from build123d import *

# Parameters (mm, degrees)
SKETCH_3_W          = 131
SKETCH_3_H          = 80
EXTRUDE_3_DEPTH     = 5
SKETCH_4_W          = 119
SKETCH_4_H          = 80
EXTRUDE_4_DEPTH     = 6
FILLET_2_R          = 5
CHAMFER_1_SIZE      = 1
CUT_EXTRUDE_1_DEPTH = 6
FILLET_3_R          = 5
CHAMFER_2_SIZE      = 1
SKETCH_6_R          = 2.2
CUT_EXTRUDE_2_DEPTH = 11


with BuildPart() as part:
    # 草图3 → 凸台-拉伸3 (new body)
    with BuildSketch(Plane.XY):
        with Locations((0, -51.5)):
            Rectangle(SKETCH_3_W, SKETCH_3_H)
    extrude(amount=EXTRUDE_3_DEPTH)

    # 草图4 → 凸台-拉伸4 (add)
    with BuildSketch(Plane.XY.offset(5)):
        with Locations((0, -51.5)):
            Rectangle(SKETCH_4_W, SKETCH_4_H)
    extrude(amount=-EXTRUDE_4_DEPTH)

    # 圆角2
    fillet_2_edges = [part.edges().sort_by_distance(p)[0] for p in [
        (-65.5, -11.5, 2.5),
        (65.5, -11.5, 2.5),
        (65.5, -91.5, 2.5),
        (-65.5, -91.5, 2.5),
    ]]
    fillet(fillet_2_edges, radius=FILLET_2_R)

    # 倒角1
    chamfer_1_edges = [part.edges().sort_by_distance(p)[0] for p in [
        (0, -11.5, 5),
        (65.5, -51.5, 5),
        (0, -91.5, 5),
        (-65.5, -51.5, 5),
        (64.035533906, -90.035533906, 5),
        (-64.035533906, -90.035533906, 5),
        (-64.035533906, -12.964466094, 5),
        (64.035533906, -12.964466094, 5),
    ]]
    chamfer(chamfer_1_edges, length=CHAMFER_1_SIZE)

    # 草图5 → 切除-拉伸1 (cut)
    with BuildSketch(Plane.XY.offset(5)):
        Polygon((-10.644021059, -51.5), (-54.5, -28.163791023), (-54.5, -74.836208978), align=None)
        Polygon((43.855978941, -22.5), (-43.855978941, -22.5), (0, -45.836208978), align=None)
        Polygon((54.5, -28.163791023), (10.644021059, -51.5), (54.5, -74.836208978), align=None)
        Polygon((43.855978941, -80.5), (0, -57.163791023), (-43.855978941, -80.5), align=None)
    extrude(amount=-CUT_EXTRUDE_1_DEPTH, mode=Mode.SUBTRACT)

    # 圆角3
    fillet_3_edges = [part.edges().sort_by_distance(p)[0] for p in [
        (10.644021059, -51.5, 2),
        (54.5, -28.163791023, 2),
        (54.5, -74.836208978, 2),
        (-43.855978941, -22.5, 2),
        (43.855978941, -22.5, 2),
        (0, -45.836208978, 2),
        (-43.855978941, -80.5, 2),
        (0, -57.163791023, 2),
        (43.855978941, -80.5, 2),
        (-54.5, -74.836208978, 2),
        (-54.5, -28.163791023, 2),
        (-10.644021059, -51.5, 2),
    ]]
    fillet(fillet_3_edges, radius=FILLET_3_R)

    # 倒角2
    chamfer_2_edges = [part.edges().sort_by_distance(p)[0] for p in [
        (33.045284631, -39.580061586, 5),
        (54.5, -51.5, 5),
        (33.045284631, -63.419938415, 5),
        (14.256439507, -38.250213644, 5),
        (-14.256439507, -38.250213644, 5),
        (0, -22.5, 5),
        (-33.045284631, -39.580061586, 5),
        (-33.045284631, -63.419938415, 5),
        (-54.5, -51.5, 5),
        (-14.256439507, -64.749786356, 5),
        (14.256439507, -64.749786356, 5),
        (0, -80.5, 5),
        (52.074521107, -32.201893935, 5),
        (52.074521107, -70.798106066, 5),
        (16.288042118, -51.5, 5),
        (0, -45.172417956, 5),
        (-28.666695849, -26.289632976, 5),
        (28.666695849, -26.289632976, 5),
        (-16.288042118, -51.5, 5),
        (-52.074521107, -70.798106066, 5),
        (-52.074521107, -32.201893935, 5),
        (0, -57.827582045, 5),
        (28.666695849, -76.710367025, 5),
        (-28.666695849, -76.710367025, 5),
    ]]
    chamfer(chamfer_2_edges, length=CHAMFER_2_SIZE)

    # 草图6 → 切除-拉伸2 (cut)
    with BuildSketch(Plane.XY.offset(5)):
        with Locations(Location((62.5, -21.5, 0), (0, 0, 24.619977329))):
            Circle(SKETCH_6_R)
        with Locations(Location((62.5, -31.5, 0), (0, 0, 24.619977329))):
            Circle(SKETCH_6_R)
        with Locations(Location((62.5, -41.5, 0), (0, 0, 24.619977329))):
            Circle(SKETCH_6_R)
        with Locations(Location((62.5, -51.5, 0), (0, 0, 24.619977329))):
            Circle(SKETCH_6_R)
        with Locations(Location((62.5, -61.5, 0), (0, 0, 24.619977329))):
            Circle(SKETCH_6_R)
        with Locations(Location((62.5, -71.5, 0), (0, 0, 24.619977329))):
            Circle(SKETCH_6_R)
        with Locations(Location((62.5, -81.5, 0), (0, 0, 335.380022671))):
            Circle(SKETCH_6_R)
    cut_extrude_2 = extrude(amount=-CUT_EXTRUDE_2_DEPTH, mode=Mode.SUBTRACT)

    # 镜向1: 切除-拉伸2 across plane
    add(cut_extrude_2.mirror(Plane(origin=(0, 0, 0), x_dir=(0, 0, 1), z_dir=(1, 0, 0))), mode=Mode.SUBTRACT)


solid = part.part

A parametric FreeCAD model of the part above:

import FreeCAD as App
import Part
import Sketcher
from FreeCAD import Vector
Q = App.Units.Quantity


def edges_at(feature, points):
    """Names of the edges that pass closest to the given points."""
    edges = feature.Shape.Edges
    near = lambda p: min(range(len(edges)), key=lambda i: edges[i].distToShape(Part.Vertex(*p))[0])
    return sorted({f"Edge{near(p) + 1}" for p in points})


def add_polygon(sketch, points):
    """Adds a closed chain of lines whose ends are joined by coincident constraints."""
    first, n = sketch.GeometryCount, len(points)
    for a, b in zip(points, points[1:] + points[:1]):
        sketch.addGeometry(Part.LineSegment(App.Vector(*a, 0), App.Vector(*b, 0)), False)
    for i in range(n):
        sketch.addConstraint(Sketcher.Constraint("Coincident", first + i, 2, first + (i + 1) % n, 1))

doc = App.newDocument("Part")
body = doc.addObject("PartDesign::Body", "Body")

sketch1 = body.newObject("Sketcher::SketchObject", "Sketch")
sketch1.AttachmentSupport = (doc.getObject("XY_Plane"), [""])
sketch1.MapMode = "FlatFace"
add_polygon(sketch1, [(-66, -12), (-66, -92), (66, -92), (66, -12)])
sketch1.addConstraint([
    Sketcher.Constraint("Vertical", 0),
    Sketcher.Constraint("Horizontal", 1),
    Sketcher.Constraint("Vertical", 2),
    Sketcher.Constraint("Horizontal", 3),
    Sketcher.Constraint("DistanceX", 1, 1, 1, 2, Q("131 mm")),
    Sketcher.Constraint("DistanceY", 0, 2, 0, 1, Q("80 mm")),
    Sketcher.Constraint("DistanceX", 0, 2, -1, 1, Q("65.5 mm")),
    Sketcher.Constraint("DistanceY", 0, 2, -1, 1, Q("91.5 mm")),
])
pad1 = body.newObject("PartDesign::Pad", "Pad")
pad1.Profile = sketch1
pad1.Length = 5

sketch2 = body.newObject("Sketcher::SketchObject", "Sketch001")
sketch2.AttachmentSupport = (doc.getObject("XY_Plane"), [""])
sketch2.MapMode = "FlatFace"
sketch2.AttachmentOffset = App.Placement(Vector(0, 0, 5), App.Rotation())
add_polygon(sketch2, [(-60, -12), (-60, -92), (60, -92), (60, -12)])
sketch2.addConstraint([
    Sketcher.Constraint("Vertical", 0),
    Sketcher.Constraint("Horizontal", 1),
    Sketcher.Constraint("Vertical", 2),
    Sketcher.Constraint("Horizontal", 3),
    Sketcher.Constraint("DistanceX", 1, 1, 1, 2, Q("119 mm")),
    Sketcher.Constraint("DistanceY", 0, 2, 0, 1, Q("80 mm")),
    Sketcher.Constraint("DistanceX", 0, 2, -1, 1, Q("59.5 mm")),
    Sketcher.Constraint("DistanceY", 0, 2, -1, 1, Q("91.5 mm")),
])
pad2 = body.newObject("PartDesign::Pad", "Pad001")
pad2.Profile = sketch2
pad2.Length = 6
pad2.Reversed = True
doc.recompute()

fillet = body.newObject("PartDesign::Fillet", "Fillet")
fillet.Base = (pad2, edges_at(pad2, [
    (-65.5, -11.5, 2.5),
    (65.5, -11.5, 2.5),
    (65.5, -91.5, 2.5),
    (-65.5, -91.5, 2.5),
]))
fillet.Radius = 5
doc.recompute()

chamfer = body.newObject("PartDesign::Chamfer", "Chamfer")
chamfer.Base = (fillet, edges_at(fillet, [
    (0, -11.5, 5),
    (65.5, -51.5, 5),
    (0, -91.5, 5),
    (-65.5, -51.5, 5),
    (64.036, -90.036, 5),
    (-64.036, -90.036, 5),
    (-64.036, -12.964, 5),
    (64.036, -12.964, 5),
]))
chamfer.Size = 1

sketch3 = body.newObject("Sketcher::SketchObject", "Sketch002")
sketch3.AttachmentSupport = (doc.getObject("XY_Plane"), [""])
sketch3.MapMode = "FlatFace"
sketch3.AttachmentOffset = App.Placement(Vector(0, 0, 5), App.Rotation())
add_polygon(sketch3, [(-11, -52), (-54, -28), (-54, -75)])
add_polygon(sketch3, [(44, -22), (-44, -22), (0, -46)])
add_polygon(sketch3, [(54, -28), (11, -52), (54, -75)])
add_polygon(sketch3, [(44, -80), (0, -57), (-44, -80)])
sketch3.addConstraint([
    Sketcher.Constraint("Vertical", 1),
    Sketcher.Constraint("Horizontal", 3),
    Sketcher.Constraint("Vertical", 8),
    Sketcher.Constraint("Horizontal", 11),
    Sketcher.Constraint("Symmetric", 2, 2, 6, 2, -2),
    Sketcher.Constraint("Symmetric", 1, 2, 7, 2, -2),
    Sketcher.Constraint("PointOnObject", 4, 2, -2),
    Sketcher.Constraint("PointOnObject", 9, 2, -2),
    Sketcher.Constraint("Parallel", 0, 4),
    Sketcher.Constraint("Parallel", 2, 5),
    Sketcher.Constraint("Parallel", 5, 6),
    Sketcher.Constraint("Parallel", 4, 7),
    Sketcher.Constraint("Parallel", 7, 9),
    Sketcher.Constraint("Parallel", 6, 10),
    Sketcher.Constraint("Vertical", 3, 2, 10, 2),
    Sketcher.Constraint("Equal", 2, 4),
    Sketcher.Constraint("DistanceY", 2, 2, 3, 2, Q("29 mm")),
    Sketcher.Constraint("DistanceX", 1, 2, 7, 2, Q("109 mm")),
    Sketcher.Constraint("DistanceY", 10, 2, 2, 2, Q("29 mm")),
    Sketcher.Constraint("DistanceY", 2, 2, -1, 1, Q("51.5 mm")),
    Sketcher.Constraint("Distance", 0, Q("49.67822 mm")),
    Sketcher.Constraint("DistanceX", 3, 2, 3, 1, Q("87.711958 mm")),
])
pocket1 = body.newObject("PartDesign::Pocket", "Pocket")
pocket1.Profile = sketch3
pocket1.Length = 6
doc.recompute()

fillet2 = body.newObject("PartDesign::Fillet", "Fillet001")
fillet2.Base = (pocket1, edges_at(pocket1, [
    (10.644, -51.5, 2),
    (54.5, -28.164, 2),
    (54.5, -74.836, 2),
    (-43.856, -22.5, 2),
    (43.856, -22.5, 2),
    (0, -45.836, 2),
    (-43.856, -80.5, 2),
    (0, -57.164, 2),
    (43.856, -80.5, 2),
    (-54.5, -74.836, 2),
    (-54.5, -28.164, 2),
    (-10.644, -51.5, 2),
]))
fillet2.Radius = 5
doc.recompute()

chamfer2 = body.newObject("PartDesign::Chamfer", "Chamfer001")
chamfer2.Base = (fillet2, edges_at(fillet2, [
    (33.045, -39.58, 5),
    (54.5, -51.5, 5),
    (33.045, -63.42, 5),
    (14.256, -38.25, 5),
    (-14.256, -38.25, 5),
    (0, -22.5, 5),
    (-33.045, -39.58, 5),
    (-33.045, -63.42, 5),
    (-54.5, -51.5, 5),
    (-14.256, -64.75, 5),
    (14.256, -64.75, 5),
    (0, -80.5, 5),
    (52.075, -32.202, 5),
    (52.075, -70.798, 5),
    (16.288, -51.5, 5),
    (0, -45.172, 5),
    (-28.667, -26.29, 5),
    (28.667, -26.29, 5),
    (-16.288, -51.5, 5),
    (-52.075, -70.798, 5),
    (-52.075, -32.202, 5),
    (0, -57.828, 5),
    (28.667, -76.71, 5),
    (-28.667, -76.71, 5),
]))
chamfer2.Size = 1

sketch4 = body.newObject("Sketcher::SketchObject", "Sketch003")
sketch4.AttachmentSupport = (doc.getObject("XY_Plane"), [""])
sketch4.MapMode = "FlatFace"
sketch4.AttachmentOffset = App.Placement(Vector(0, 0, 5), App.Rotation())
sketch4.addGeometry([
    Part.Circle(Vector(62.5, -21.5, 0), Vector(0, 0, 1), 2.2),
    Part.Circle(Vector(62.5, -31.5, 0), Vector(0, 0, 1), 2.2),
    Part.Circle(Vector(62.5, -41.5, 0), Vector(0, 0, 1), 2.2),
    Part.Circle(Vector(62.5, -51.5, 0), Vector(0, 0, 1), 2.2),
    Part.Circle(Vector(62.5, -61.5, 0), Vector(0, 0, 1), 2.2),
    Part.Circle(Vector(62.5, -71.5, 0), Vector(0, 0, 1), 2.2),
    Part.Circle(Vector(62.5, -81.5, 0), Vector(0, 0, 1), 2.2),
], False)
sketch4.addConstraint([
    Sketcher.Constraint("Equal", 0, 1),
    Sketcher.Constraint("Equal", 1, 2),
    Sketcher.Constraint("Equal", 2, 3),
    Sketcher.Constraint("Equal", 3, 4),
    Sketcher.Constraint("Equal", 4, 5),
    Sketcher.Constraint("Equal", 5, 6),
    Sketcher.Constraint("Vertical", 0, 3, 1, 3),
    Sketcher.Constraint("Vertical", 1, 3, 2, 3),
    Sketcher.Constraint("Vertical", 2, 3, 3, 3),
    Sketcher.Constraint("Vertical", 3, 3, 4, 3),
    Sketcher.Constraint("Vertical", 4, 3, 5, 3),
    Sketcher.Constraint("Vertical", 5, 3, 6, 3),
    Sketcher.Constraint("Diameter", 0, Q("4.4 mm")),
    Sketcher.Constraint("DistanceY", 1, 3, 0, 3, Q("10 mm")),
    Sketcher.Constraint("DistanceY", 2, 3, 1, 3, Q("10 mm")),
    Sketcher.Constraint("DistanceY", 3, 3, 2, 3, Q("10 mm")),
    Sketcher.Constraint("DistanceY", 4, 3, 3, 3, Q("10 mm")),
    Sketcher.Constraint("DistanceY", 5, 3, 4, 3, Q("10 mm")),
    Sketcher.Constraint("DistanceY", 6, 3, 5, 3, Q("10 mm")),
    Sketcher.Constraint("DistanceX", -1, 1, 0, 3, Q("62.5 mm")),
    Sketcher.Constraint("DistanceY", 0, 3, -1, 1, Q("21.5 mm")),
])
pocket2 = body.newObject("PartDesign::Pocket", "Pocket001")
pocket2.Profile = sketch4
pocket2.Length = 11
doc.recompute()

mirrored = body.newObject("PartDesign::Mirrored", "Mirrored")
mirrored.Originals = [pocket2]
mirrored.MirrorPlane = (doc.getObject("YZ_Plane"), [""])
body.Tip = mirrored

doc.recompute()
